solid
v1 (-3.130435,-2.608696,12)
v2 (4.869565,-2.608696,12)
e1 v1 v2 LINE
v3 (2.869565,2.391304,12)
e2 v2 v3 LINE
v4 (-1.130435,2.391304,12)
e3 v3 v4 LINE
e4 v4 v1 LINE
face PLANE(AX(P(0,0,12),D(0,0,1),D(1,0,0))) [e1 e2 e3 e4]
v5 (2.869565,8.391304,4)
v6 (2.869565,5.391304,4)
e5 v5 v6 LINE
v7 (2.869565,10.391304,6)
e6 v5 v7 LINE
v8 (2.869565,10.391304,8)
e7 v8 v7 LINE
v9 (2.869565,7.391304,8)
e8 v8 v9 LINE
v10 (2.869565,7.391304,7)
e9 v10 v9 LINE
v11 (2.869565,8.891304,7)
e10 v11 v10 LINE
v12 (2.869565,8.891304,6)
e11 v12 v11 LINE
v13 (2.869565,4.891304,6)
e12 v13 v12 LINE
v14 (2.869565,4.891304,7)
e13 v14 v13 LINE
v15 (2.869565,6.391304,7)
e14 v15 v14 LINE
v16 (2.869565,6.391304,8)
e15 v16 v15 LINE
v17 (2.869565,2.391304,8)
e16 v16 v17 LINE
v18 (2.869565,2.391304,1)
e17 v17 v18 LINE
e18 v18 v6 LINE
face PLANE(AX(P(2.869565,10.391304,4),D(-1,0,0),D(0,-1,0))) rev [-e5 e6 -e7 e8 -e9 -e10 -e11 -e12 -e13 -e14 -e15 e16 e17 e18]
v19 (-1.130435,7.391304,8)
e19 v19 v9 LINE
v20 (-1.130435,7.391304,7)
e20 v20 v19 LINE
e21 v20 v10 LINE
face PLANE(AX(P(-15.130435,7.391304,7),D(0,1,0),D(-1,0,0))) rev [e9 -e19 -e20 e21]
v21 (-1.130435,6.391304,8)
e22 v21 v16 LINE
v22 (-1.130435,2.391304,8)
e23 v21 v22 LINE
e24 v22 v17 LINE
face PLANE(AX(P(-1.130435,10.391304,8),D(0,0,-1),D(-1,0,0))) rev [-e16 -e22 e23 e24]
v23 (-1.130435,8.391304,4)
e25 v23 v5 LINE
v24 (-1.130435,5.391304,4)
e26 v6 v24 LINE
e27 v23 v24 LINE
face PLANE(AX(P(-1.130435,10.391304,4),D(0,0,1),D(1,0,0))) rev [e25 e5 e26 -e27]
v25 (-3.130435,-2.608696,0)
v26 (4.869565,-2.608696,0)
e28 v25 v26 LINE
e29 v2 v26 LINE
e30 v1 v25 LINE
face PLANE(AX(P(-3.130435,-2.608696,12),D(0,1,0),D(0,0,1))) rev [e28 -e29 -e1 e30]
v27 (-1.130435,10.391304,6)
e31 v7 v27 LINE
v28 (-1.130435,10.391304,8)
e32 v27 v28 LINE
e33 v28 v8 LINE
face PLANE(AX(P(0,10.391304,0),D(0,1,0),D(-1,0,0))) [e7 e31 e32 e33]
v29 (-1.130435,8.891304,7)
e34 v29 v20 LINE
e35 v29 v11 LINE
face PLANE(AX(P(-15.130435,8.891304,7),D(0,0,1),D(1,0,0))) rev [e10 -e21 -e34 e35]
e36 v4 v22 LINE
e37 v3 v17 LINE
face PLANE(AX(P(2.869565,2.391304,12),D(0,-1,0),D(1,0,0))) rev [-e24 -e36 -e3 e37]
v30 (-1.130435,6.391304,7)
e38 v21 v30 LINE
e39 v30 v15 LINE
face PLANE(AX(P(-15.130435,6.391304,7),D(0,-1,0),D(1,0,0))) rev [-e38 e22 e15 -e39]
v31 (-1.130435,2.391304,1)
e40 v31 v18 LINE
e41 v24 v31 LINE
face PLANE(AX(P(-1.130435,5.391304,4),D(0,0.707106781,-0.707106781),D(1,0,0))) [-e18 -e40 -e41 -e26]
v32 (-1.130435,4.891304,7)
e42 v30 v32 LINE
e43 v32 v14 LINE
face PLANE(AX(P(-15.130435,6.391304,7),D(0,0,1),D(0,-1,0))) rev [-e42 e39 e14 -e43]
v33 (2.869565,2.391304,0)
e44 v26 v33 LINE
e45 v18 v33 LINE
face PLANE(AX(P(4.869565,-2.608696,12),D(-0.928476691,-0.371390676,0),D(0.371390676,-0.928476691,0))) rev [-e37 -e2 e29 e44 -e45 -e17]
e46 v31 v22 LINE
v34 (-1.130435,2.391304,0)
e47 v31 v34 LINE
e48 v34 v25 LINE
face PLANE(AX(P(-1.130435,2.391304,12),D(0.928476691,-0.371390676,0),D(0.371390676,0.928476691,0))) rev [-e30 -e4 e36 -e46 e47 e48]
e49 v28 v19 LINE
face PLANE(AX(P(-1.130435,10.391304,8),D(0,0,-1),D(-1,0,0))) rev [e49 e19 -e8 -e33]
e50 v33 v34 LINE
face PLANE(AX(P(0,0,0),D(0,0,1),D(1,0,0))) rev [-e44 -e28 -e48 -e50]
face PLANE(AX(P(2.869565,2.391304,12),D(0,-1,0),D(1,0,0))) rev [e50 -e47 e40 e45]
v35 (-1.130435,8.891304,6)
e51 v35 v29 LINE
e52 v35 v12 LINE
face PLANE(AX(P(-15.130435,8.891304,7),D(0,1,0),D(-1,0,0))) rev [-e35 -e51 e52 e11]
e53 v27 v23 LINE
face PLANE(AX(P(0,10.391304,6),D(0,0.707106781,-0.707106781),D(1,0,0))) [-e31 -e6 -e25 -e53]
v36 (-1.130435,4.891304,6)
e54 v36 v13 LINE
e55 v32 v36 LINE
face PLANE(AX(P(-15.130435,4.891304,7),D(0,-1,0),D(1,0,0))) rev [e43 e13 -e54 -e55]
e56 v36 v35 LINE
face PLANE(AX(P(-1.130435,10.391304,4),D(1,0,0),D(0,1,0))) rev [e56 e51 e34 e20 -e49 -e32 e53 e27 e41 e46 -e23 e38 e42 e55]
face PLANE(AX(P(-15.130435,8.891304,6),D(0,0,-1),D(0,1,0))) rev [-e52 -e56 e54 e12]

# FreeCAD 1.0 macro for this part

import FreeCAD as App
import Part
import Sketcher
from FreeCAD import Vector


def edges_at(feature, points):
    """Names of the edges that pass closest to the given points."""
    edges = feature.Shape.Edges
    near = lambda p: min(range(len(edges)), key=lambda i: edges[i].distToShape(Part.Vertex(*p))[0])
    return sorted({f"Edge{near(p) + 1}" for p in points})

doc = App.newDocument("Part")
params = doc.addObject("Spreadsheet::Sheet", "Params")
for row, (alias, value) in enumerate([
    ("sketch1_width", "8 mm"),
    ("sketch1_width2", "4 mm"),
    ("pad1_length", "12 mm"),
    ("sketch2_width", "4 mm"),
    ("pad2_length", "8 mm"),
    ("chamfer_size", "3 mm"),
    ("sketch3_width", "1 mm"),
    ("sketch3_width2", "4 mm"),
    ("pocket1_length", "18 mm"),
    ("chamfer2_size", "2 mm"),
], start=1):
    params.set(f"A{row}", alias)
    params.set(f"B{row}", "=" + value)
    params.setAlias(f"B{row}", alias)

body = doc.addObject("PartDesign::Body", "Body")

sketch1 = body.newObject("Sketcher::SketchObject", "Sketch")
sketch1.AttachmentSupport = (doc.getObject("XY_Plane"), [""])
sketch1.MapMode = "FlatFace"
sketch1.addGeometry([
    Part.LineSegment(Vector(-3.1, -2.6, 0), Vector(4.9, -2.6, 0)),
    Part.LineSegment(Vector(4.9, -2.6, 0), Vector(2.9, 2.4, 0)),
    Part.LineSegment(Vector(2.9, 2.4, 0), Vector(-1.1, 2.4, 0)),
    Part.LineSegment(Vector(-1.1, 2.4, 0), Vector(-3.1, -2.6, 0)),
], False)
sketch1.addConstraint([
    Sketcher.Constraint("Coincident", 0, 2, 1, 1),
    Sketcher.Constraint("Coincident", 1, 2, 2, 1),
    Sketcher.Constraint("Coincident", 2, 2, 3, 1),
    Sketcher.Constraint("Coincident", 3, 2, 0, 1),
    Sketcher.Constraint("Horizontal", 0),
    Sketcher.Constraint("Horizontal", 2),
    Sketcher.Constraint("Equal", 1, 3),
    Sketcher.Constraint("DistanceX", 0, 1, 0, 2, 8.0),
    Sketcher.Constraint("DistanceX", 2, 2, 2, 1, 4.0),
    Sketcher.Constraint("DistanceY", 0, 2, 1, 2, 5.0),
    Sketcher.Constraint("DistanceX", -1, 1, 0, 2, 4.869565),
    Sketcher.Constraint("DistanceY", 0, 2, -1, 1, 2.608696),
])
sketch1.setExpression("Constraints[7]", "Params.sketch1_width")
sketch1.setExpression("Constraints[8]", "Params.sketch1_width2")
pad1 = body.newObject("PartDesign::Pad", "Pad")
pad1.Profile = sketch1
pad1.setExpression("Length", "Params.pad1_length")

sketch2 = body.newObject("Sketcher::SketchObject", "Sketch001")
sketch2.AttachmentSupport = (doc.getObject("XZ_Plane"), [""])
sketch2.MapMode = "FlatFace"
sketch2.AttachmentOffset = App.Placement(Vector(0, 0, -2.391304), App.Rotation())
sketch2.addGeometry([
    Part.LineSegment(Vector(-1.1, 4, 0), Vector(-1.1, 8, 0)),
    Part.LineSegment(Vector(-1.1, 8, 0), Vector(2.9, 8, 0)),
    Part.LineSegment(Vector(2.9, 8, 0), Vector(2.9, 4, 0)),
    Part.LineSegment(Vector(2.9, 4, 0), Vector(-1.1, 4, 0)),
], False)
sketch2.addConstraint([
    Sketcher.Constraint("Coincident", 0, 2, 1, 1),
    Sketcher.Constraint("Coincident", 1, 2, 2, 1),
    Sketcher.Constraint("Coincident", 2, 2, 3, 1),
    Sketcher.Constraint("Coincident", 3, 2, 0, 1),
    Sketcher.Constraint("Vertical", 0),
    Sketcher.Constraint("Horizontal", 1),
    Sketcher.Constraint("Vertical", 2),
    Sketcher.Constraint("Horizontal", 3),
    Sketcher.Constraint("Equal", 3, 0),
    Sketcher.Constraint("DistanceX", 1, 1, 1, 2, 4.0),
    Sketcher.Constraint("DistanceY", -1, 1, 0, 2, 8.0),
    Sketcher.Constraint("DistanceX", 0, 2, -1, 1, 1.130435),
])
sketch2.setExpression("Constraints[9]", "Params.sketch2_width")
pad2 = body.newObject("PartDesign::Pad", "Pad001")
pad2.Profile = sketch2
pad2.setExpression("Length", "Params.pad2_length")
pad2.Reversed = True
doc.recompute()

chamfer = body.newObject("PartDesign::Chamfer", "Chamfer")
chamfer.Base = (pad2, edges_at(pad2, [(0.87, 2.391, 4)]))
chamfer.setExpression("Size", "Params.chamfer_size")

sketch3 = body.newObject("Sketcher::SketchObject", "Sketch002")
sketch3.AttachmentSupport = (doc.getObject("YZ_Plane"), [""])
sketch3.MapMode = "FlatFace"
sketch3.AttachmentOffset = App.Placement(Vector(0, 0, 2.869565), App.Rotation())
sketch3.addGeometry([
    Part.LineSegment(Vector(8.9, 6, 0), Vector(8.9, 7, 0)),
    Part.LineSegment(Vector(8.9, 7, 0), Vector(7.4, 7, 0)),
    Part.LineSegment(Vector(7.4, 7, 0), Vector(7.4, 8, 0)),
    Part.LineSegment(Vector(7.4, 8, 0), Vector(6.4, 8, 0)),
    Part.LineSegment(Vector(6.4, 8, 0), Vector(6.4, 7, 0)),
    Part.LineSegment(Vector(6.4, 7, 0), Vector(4.9, 7, 0)),
    Part.LineSegment(Vector(4.9, 7, 0), Vector(4.9, 6, 0)),
    Part.LineSegment(Vector(4.9, 6, 0), Vector(8.9, 6, 0)),
], False)
sketch3.addConstraint([
    Sketcher.Constraint("Coincident", 0, 2, 1, 1),
    Sketcher.Constraint("Coincident", 1, 2, 2, 1),
    Sketcher.Constraint("Coincident", 2, 2, 3, 1),
    Sketcher.Constraint("Coincident", 3, 2, 4, 1),
    Sketcher.Constraint("Coincident", 4, 2, 5, 1),
    Sketcher.Constraint("Coincident", 5, 2, 6, 1),
    Sketcher.Constraint("Coincident", 6, 2, 7, 1),
    Sketcher.Constraint("Coincident", 7, 2, 0, 1),
    Sketcher.Constraint("Vertical", 0),
    Sketcher.Constraint("Horizontal", 1),
    Sketcher.Constraint("Vertical", 2),
    Sketcher.Constraint("Horizontal", 3),
    Sketcher.Constraint("Vertical", 4),
    Sketcher.Constraint("Horizontal", 5),
    Sketcher.Constraint("Vertical", 6),
    Sketcher.Constraint("Horizontal", 7),
    Sketcher.Constraint("Horizontal", 1, 2, 4, 2),
    Sketcher.Constraint("Equal", 1, 5),
    Sketcher.Constraint("Equal", 3, 0),
    Sketcher.Constraint("Equal", 0, 2),
    Sketcher.Constraint("DistanceX", 3, 2, 3, 1, 1.0),
    Sketcher.Constraint("DistanceX", 7, 1, 7, 2, 4.0),
    Sketcher.Constraint("DistanceY", -1, 1, 0, 2, 7.0),
    Sketcher.Constraint("DistanceX", -1, 1, 0, 2, 8.891304),
])
sketch3.setExpression("Constraints[20]", "Params.sketch3_width")
sketch3.setExpression("Constraints[21]", "Params.sketch3_width2")
pocket1 = body.newObject("PartDesign::Pocket", "Pocket")
pocket1.Profile = sketch3
pocket1.setExpression("Length", "Params.pocket1_length")
doc.recompute()

chamfer2 = body.newObject("PartDesign::Chamfer", "Chamfer001")
chamfer2.Base = (pocket1, edges_at(pocket1, [(0.87, 10.391, 4)]))
chamfer2.setExpression("Size", "Params.chamfer2_size")

doc.recompute()
